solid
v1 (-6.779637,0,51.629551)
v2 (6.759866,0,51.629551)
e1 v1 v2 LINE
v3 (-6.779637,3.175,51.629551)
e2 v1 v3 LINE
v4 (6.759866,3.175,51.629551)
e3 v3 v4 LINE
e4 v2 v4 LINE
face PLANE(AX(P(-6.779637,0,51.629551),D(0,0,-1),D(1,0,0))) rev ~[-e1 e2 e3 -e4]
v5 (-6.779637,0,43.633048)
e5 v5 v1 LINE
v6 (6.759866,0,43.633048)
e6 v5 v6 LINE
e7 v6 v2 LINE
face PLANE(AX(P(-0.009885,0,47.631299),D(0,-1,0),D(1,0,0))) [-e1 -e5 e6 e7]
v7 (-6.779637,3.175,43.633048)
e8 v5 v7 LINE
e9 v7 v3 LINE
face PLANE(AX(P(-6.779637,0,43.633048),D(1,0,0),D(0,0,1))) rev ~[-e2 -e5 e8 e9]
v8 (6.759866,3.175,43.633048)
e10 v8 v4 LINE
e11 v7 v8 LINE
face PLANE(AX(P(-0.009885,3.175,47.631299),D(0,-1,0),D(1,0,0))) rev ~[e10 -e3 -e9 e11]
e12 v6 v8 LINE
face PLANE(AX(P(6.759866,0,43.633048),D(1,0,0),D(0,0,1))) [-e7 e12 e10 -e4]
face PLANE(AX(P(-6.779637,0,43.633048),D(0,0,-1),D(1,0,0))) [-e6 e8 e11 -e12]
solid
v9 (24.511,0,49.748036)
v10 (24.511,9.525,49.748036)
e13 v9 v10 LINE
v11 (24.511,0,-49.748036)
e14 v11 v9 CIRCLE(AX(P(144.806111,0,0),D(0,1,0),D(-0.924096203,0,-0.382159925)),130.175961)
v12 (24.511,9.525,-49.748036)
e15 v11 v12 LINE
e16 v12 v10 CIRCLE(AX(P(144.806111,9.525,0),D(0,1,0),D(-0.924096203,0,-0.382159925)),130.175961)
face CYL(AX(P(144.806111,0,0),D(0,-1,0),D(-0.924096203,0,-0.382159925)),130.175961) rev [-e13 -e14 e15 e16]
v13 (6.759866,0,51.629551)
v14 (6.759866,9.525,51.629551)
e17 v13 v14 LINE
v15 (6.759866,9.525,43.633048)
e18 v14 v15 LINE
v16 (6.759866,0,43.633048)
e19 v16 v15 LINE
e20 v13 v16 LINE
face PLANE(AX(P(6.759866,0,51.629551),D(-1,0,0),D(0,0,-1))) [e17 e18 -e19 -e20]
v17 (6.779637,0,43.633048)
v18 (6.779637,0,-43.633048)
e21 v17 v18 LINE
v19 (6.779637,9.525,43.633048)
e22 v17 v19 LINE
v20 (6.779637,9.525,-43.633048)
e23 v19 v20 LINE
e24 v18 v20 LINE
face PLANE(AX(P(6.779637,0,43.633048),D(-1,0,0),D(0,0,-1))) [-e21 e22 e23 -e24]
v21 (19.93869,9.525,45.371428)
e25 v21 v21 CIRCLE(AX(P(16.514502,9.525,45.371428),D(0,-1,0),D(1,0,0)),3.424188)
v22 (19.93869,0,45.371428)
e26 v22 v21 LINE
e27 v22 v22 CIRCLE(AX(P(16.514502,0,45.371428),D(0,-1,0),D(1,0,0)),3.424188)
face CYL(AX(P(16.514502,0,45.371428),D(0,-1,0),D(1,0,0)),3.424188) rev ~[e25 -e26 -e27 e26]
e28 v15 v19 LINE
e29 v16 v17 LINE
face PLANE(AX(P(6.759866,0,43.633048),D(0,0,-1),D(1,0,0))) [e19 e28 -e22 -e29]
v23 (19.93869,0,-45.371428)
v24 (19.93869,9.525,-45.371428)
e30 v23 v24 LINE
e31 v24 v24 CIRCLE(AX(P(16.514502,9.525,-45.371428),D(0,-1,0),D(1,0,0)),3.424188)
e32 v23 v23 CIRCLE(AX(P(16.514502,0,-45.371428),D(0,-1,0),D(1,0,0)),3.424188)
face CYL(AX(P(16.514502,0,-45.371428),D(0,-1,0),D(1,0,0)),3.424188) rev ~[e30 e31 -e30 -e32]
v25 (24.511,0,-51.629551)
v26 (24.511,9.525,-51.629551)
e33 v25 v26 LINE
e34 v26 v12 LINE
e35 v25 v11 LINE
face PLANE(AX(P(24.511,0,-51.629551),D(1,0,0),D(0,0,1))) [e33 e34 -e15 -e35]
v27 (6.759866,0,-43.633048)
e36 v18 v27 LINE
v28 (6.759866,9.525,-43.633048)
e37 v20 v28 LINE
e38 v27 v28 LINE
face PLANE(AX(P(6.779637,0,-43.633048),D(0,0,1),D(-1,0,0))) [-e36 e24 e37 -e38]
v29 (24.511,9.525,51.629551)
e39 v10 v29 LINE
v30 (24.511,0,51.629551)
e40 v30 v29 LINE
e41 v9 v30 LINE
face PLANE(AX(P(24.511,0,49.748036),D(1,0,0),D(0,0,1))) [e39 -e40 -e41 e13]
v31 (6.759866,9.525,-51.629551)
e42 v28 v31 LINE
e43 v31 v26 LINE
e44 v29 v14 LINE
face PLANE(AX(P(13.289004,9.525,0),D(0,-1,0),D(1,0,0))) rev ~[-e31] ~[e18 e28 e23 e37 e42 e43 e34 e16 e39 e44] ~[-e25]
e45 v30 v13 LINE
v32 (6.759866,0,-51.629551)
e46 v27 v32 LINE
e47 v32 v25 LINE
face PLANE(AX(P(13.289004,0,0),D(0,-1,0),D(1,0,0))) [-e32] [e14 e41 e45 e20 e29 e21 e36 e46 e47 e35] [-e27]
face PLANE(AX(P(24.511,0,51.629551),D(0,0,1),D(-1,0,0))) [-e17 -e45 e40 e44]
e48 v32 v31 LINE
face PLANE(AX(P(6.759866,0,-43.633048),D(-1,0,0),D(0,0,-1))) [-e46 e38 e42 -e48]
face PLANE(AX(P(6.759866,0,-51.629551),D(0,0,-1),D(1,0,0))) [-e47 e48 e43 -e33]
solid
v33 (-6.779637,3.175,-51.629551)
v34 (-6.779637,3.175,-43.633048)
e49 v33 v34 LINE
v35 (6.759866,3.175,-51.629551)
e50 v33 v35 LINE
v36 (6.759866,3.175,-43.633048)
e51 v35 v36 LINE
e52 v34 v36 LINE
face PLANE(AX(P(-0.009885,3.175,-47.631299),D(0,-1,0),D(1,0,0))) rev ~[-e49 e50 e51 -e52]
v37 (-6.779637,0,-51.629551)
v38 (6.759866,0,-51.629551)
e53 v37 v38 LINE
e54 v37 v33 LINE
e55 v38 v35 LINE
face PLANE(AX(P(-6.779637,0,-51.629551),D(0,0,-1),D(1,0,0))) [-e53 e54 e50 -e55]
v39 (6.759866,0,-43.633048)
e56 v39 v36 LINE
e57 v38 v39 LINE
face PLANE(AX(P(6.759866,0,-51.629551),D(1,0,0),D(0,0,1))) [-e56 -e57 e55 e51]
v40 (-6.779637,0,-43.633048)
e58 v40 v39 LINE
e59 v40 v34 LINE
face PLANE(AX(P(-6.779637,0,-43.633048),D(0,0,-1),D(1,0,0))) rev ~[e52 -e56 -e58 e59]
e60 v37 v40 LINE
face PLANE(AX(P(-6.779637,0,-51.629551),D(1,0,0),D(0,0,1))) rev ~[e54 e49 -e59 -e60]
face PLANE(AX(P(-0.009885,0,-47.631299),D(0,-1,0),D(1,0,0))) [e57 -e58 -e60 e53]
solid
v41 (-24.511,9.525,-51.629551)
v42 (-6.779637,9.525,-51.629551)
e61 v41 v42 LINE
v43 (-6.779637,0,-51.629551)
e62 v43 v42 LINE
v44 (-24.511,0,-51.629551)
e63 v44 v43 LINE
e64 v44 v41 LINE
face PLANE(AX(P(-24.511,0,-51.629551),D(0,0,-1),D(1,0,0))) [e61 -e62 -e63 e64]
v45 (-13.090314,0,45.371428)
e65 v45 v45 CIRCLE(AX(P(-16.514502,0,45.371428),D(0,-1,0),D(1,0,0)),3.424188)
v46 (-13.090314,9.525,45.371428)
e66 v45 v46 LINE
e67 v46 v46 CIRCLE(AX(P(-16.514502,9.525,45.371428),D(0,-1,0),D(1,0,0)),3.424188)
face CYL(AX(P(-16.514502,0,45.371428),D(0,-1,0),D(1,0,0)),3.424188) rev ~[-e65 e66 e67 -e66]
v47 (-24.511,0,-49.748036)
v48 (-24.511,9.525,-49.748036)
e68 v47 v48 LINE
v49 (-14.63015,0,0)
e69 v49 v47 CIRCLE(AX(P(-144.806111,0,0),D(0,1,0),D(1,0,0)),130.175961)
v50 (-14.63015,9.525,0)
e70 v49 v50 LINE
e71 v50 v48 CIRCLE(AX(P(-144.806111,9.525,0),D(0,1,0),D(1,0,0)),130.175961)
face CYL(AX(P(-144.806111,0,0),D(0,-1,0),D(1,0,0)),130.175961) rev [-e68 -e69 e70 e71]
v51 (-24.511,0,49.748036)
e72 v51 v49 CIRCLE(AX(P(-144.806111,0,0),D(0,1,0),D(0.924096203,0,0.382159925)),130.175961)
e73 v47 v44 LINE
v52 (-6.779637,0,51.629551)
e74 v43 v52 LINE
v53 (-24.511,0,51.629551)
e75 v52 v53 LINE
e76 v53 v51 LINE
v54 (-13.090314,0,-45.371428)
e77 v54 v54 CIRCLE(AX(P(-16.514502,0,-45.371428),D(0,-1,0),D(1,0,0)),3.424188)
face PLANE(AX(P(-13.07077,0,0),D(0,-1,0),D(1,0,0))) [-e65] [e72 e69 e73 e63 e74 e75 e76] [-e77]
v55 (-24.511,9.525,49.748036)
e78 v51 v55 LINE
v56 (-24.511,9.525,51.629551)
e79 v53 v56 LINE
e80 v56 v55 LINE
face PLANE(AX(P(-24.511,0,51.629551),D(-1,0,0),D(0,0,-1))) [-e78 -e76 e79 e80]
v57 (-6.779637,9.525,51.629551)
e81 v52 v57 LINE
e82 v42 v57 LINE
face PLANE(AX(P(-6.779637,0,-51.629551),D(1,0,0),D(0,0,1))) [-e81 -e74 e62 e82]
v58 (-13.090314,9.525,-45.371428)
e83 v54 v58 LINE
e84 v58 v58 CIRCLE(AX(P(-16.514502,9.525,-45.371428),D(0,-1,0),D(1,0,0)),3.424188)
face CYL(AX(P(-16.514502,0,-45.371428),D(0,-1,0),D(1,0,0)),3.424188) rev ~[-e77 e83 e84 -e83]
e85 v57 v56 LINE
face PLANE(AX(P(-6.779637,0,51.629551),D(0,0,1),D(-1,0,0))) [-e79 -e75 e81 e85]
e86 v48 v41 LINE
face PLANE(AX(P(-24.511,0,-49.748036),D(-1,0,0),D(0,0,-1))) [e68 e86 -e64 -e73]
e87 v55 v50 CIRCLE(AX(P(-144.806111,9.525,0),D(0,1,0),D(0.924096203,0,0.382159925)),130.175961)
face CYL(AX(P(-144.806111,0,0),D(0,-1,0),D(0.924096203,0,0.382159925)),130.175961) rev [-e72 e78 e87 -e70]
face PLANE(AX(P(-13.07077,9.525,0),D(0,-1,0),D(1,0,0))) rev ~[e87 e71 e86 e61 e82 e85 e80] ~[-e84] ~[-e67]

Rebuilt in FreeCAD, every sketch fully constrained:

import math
import FreeCAD as App
import Part
import Sketcher

V = App.Vector
Q = App.Units.Quantity

doc = App.newDocument("Part")
body = doc.addObject("PartDesign::Body", "Body")

# Sketch on XZ plane
sketch1 = body.newObject("Sketcher::SketchObject", "Sketch")
sketch1.AttachmentSupport = (doc.getObject("XZ_Plane"), [""])
sketch1.MapMode = "FlatFace"
sketch1.addGeometry(Part.LineSegment(V(-24.5, -51.6, 0), V(-6.8, -51.6, 0)), False)
sketch1.addGeometry(Part.LineSegment(V(-6.8, -51.6, 0), V(-6.8, 51.6, 0)), False)
sketch1.addGeometry(Part.LineSegment(V(-6.8, 51.6, 0), V(-24.5, 51.6, 0)), False)
sketch1.addGeometry(Part.LineSegment(V(-24.5, 51.6, 0), V(-24.5, 49.7, 0)), False)
sketch1.addGeometry(Part.ArcOfCircle(Part.Circle(V(-144.8, 0, 0), V(0, 0, 1), 130.2), math.radians(0), math.radians(22)), False)
sketch1.addGeometry(Part.ArcOfCircle(Part.Circle(V(-144.8, 0, 0), V(0, 0, 1), 130.2), math.radians(-22), math.radians(0)), False)
sketch1.addGeometry(Part.LineSegment(V(-24.5, -49.7, 0), V(-24.5, -51.6, 0)), False)
sketch1.addGeometry(Part.Circle(V(-16.5, -45.4, 0), V(0, 0, 1), 3.4), False)
sketch1.addGeometry(Part.Circle(V(-16.5, 45.4, 0), V(0, 0, 1), 3.4), False)
sketch1.addConstraint(Sketcher.Constraint("Coincident", 0, 2, 1, 1))
sketch1.addConstraint(Sketcher.Constraint("Coincident", 1, 2, 2, 1))
sketch1.addConstraint(Sketcher.Constraint("Coincident", 2, 2, 3, 1))
sketch1.addConstraint(Sketcher.Constraint("Coincident", 3, 2, 4, 2))
sketch1.addConstraint(Sketcher.Constraint("Tangent", 4, 1, 5, 2))
sketch1.addConstraint(Sketcher.Constraint("Coincident", 5, 1, 6, 1))
sketch1.addConstraint(Sketcher.Constraint("Coincident", 6, 2, 0, 1))
sketch1.addConstraint(Sketcher.Constraint("Horizontal", 0))
sketch1.addConstraint(Sketcher.Constraint("Vertical", 1))
sketch1.addConstraint(Sketcher.Constraint("Horizontal", 2))
sketch1.addConstraint(Sketcher.Constraint("Vertical", 3))
sketch1.addConstraint(Sketcher.Constraint("Vertical", 6))
sketch1.addConstraint(Sketcher.Constraint("Equal", 4, 5))
sketch1.addConstraint(Sketcher.Constraint("Equal", 7, 8))
sketch1.addConstraint(Sketcher.Constraint("Symmetric", 7, 3, 8, 3, -1))
sketch1.addConstraint(Sketcher.Constraint("Symmetric", 3, 2, 5, 1, -1))
sketch1.addConstraint(Sketcher.Constraint("PointOnObject", 4, 1, -1))
sketch1.addConstraint(Sketcher.Constraint("Equal", 3, 6))
sketch1.addConstraint(Sketcher.Constraint("DistanceX", 2, 2, -1, 1, Q("0.965 in")))
sketch1.addConstraint(Sketcher.Constraint("Radius", 4, 130.175961))
sketch1.addConstraint(Sketcher.Constraint("Diameter", 7, 6.848375))
sketch1.addConstraint(Sketcher.Constraint("DistanceY", 1, 1, 1, 2, 103.259101))
sketch1.addConstraint(Sketcher.Constraint("DistanceX", 0, 1, 0, 2, 17.731363))
sketch1.addConstraint(Sketcher.Constraint("DistanceY", 3, 2, 3, 1, 1.881515))
sketch1.addConstraint(Sketcher.Constraint("DistanceY", 7, 3, -1, 1, 45.371428))
sketch1.addConstraint(Sketcher.Constraint("DistanceX", 4, 3, 7, 3, 128.291609))
pad1 = body.newObject("PartDesign::Pad", "Pad")
pad1.Profile = sketch1
pad1.Length = Q("0.375 in")
pad1.Reversed = True
body2 = doc.addObject("PartDesign::Body", "Body001")

# Sketch on XZ plane
sketch2 = body2.newObject("Sketcher::SketchObject", "Sketch001")
sketch2.AttachmentSupport = (doc.getObject("XZ_Plane001"), [""])
sketch2.MapMode = "FlatFace"
sketch2.addGeometry(Part.LineSegment(V(6.76, -51.63, 0), V(24.511, -51.63, 0)), False)
sketch2.addGeometry(Part.LineSegment(V(24.511, -51.63, 0), V(24.511, -49.748, 0)), False)
sketch2.addGeometry(Part.ArcOfCircle(Part.Circle(V(144.806, 0, 0), V(0, 0, 1), 130.176), math.radians(158), math.radians(202)), False)
sketch2.addGeometry(Part.LineSegment(V(24.511, 49.748, 0), V(24.511, 51.63, 0)), False)
sketch2.addGeometry(Part.LineSegment(V(24.511, 51.63, 0), V(6.76, 51.63, 0)), False)
sketch2.addGeometry(Part.LineSegment(V(6.76, 51.63, 0), V(6.76, 43.633, 0)), False)
sketch2.addGeometry(Part.LineSegment(V(6.76, 43.633, 0), V(6.78, 43.633, 0)), False)
sketch2.addGeometry(Part.LineSegment(V(6.78, 43.633, 0), V(6.78, -43.633, 0)), False)
sketch2.addGeometry(Part.LineSegment(V(6.78, -43.633, 0), V(6.76, -43.633, 0)), False)
sketch2.addGeometry(Part.LineSegment(V(6.76, -43.633, 0), V(6.76, -51.63, 0)), False)
sketch2.addGeometry(Part.Circle(V(16.515, -45.371, 0), V(0, 0, 1), 3.424), False)
sketch2.addGeometry(Part.Circle(V(16.515, 45.371, 0), V(0, 0, 1), 3.424), False)
sketch2.addConstraint(Sketcher.Constraint("Coincident", 0, 2, 1, 1))
sketch2.addConstraint(Sketcher.Constraint("Coincident", 1, 2, 2, 2))
sketch2.addConstraint(Sketcher.Constraint("Coincident", 2, 1, 3, 1))
sketch2.addConstraint(Sketcher.Constraint("Coincident", 3, 2, 4, 1))
sketch2.addConstraint(Sketcher.Constraint("Coincident", 4, 2, 5, 1))
sketch2.addConstraint(Sketcher.Constraint("Coincident", 5, 2, 6, 1))
sketch2.addConstraint(Sketcher.Constraint("Coincident", 6, 2, 7, 1))
sketch2.addConstraint(Sketcher.Constraint("Coincident", 7, 2, 8, 1))
sketch2.addConstraint(Sketcher.Constraint("Coincident", 8, 2, 9, 1))
sketch2.addConstraint(Sketcher.Constraint("Coincident", 9, 2, 0, 1))
sketch2.addConstraint(Sketcher.Constraint("Horizontal", 0))
sketch2.addConstraint(Sketcher.Constraint("Vertical", 1))
sketch2.addConstraint(Sketcher.Constraint("Vertical", 3))
sketch2.addConstraint(Sketcher.Constraint("Horizontal", 4))
sketch2.addConstraint(Sketcher.Constraint("Vertical", 5))
sketch2.addConstraint(Sketcher.Constraint("Horizontal", 6))
sketch2.addConstraint(Sketcher.Constraint("Vertical", 7))
sketch2.addConstraint(Sketcher.Constraint("Horizontal", 8))
sketch2.addConstraint(Sketcher.Constraint("Vertical", 9))
sketch2.addConstraint(Sketcher.Constraint("Equal", 10, 11))
sketch2.addConstraint(Sketcher.Constraint("Symmetric", 10, 3, 11, 3, -1))
sketch2.addConstraint(Sketcher.Constraint("Symmetric", 1, 2, 2, 1, -1))
sketch2.addConstraint(Sketcher.Constraint("Symmetric", 5, 2, 8, 2, -1))
sketch2.addConstraint(Sketcher.Constraint("Equal", 1, 3))
sketch2.addConstraint(Sketcher.Constraint("DistanceX", -1, 1, 0, 2, Q("0.965 in")))
sketch2.addConstraint(Sketcher.Constraint("Radius", 2, 130.175961))
sketch2.addConstraint(Sketcher.Constraint("Diameter", 10, 6.848375))
sketch2.addConstraint(Sketcher.Constraint("DistanceX", 6, 1, 6, 2, 0.019771))
sketch2.addConstraint(Sketcher.Constraint("DistanceY", 0, 2, 3, 2, 103.259101))
sketch2.addConstraint(Sketcher.Constraint("DistanceX", 0, 1, 0, 2, 17.751134))
sketch2.addConstraint(Sketcher.Constraint("DistanceY", 1, 1, 1, 2, 1.881515))
sketch2.addConstraint(Sketcher.Constraint("DistanceY", 5, 2, 5, 1, 7.996502))
sketch2.addConstraint(Sketcher.Constraint("DistanceY", 10, 3, -1, 1, 45.371428))
sketch2.addConstraint(Sketcher.Constraint("DistanceX", 10, 3, 2, 3, 128.291609))
pad2 = body2.newObject("PartDesign::Pad", "Pad001")
pad2.Profile = sketch2
pad2.Length = Q("0.375 in")
pad2.Reversed = True
body3 = doc.addObject("PartDesign::Body", "Body002")

# Sketch on XZ plane
sketch3 = body3.newObject("Sketcher::SketchObject", "Sketch002")
sketch3.AttachmentSupport = (doc.getObject("XZ_Plane002"), [""])
sketch3.MapMode = "FlatFace"
sketch3.addGeometry(Part.LineSegment(V(-7, -44, 0), V(-7, -52, 0)), False)
sketch3.addGeometry(Part.LineSegment(V(-7, -52, 0), V(7, -52, 0)), False)
sketch3.addGeometry(Part.LineSegment(V(7, -52, 0), V(7, -44, 0)), False)
sketch3.addGeometry(Part.LineSegment(V(7, -44, 0), V(-7, -44, 0)), False)
sketch3.addConstraint(Sketcher.Constraint("Coincident", 0, 2, 1, 1))
sketch3.addConstraint(Sketcher.Constraint("Coincident", 1, 2, 2, 1))
sketch3.addConstraint(Sketcher.Constraint("Coincident", 2, 2, 3, 1))
sketch3.addConstraint(Sketcher.Constraint("Coincident", 3, 2, 0, 1))
sketch3.addConstraint(Sketcher.Constraint("Vertical", 0))
sketch3.addConstraint(Sketcher.Constraint("Horizontal", 1))
sketch3.addConstraint(Sketcher.Constraint("Vertical", 2))
sketch3.addConstraint(Sketcher.Constraint("Horizontal", 3))
sketch3.addConstraint(Sketcher.Constraint("DistanceX", 1, 1, 1, 2, 13.539502))
sketch3.addConstraint(Sketcher.Constraint("DistanceY", 0, 2, 0, 1, 7.996502))
sketch3.addConstraint(Sketcher.Constraint("DistanceY", 0, 2, -1, 1, 51.629551))
sketch3.addConstraint(Sketcher.Constraint("DistanceX", 0, 2, -1, 1, 6.779637))
pad3 = body3.newObject("PartDesign::Pad", "Pad002")
pad3.Profile = sketch3
pad3.Length = Q("0.125 in")
pad3.Reversed = True
body4 = doc.addObject("PartDesign::Body", "Body003")

# Sketch on XZ plane
sketch4 = body4.newObject("Sketcher::SketchObject", "Sketch003")
sketch4.AttachmentSupport = (doc.getObject("XZ_Plane003"), [""])
sketch4.MapMode = "FlatFace"
sketch4.addGeometry(Part.LineSegment(V(-7, 52, 0), V(-7, 44, 0)), False)
sketch4.addGeometry(Part.LineSegment(V(-7, 44, 0), V(7, 44, 0)), False)
sketch4.addGeometry(Part.LineSegment(V(7, 44, 0), V(7, 52, 0)), False)
sketch4.addGeometry(Part.LineSegment(V(7, 52, 0), V(-7, 52, 0)), False)
sketch4.addConstraint(Sketcher.Constraint("Coincident", 0, 2, 1, 1))
sketch4.addConstraint(Sketcher.Constraint("Coincident", 1, 2, 2, 1))
sketch4.addConstraint(Sketcher.Constraint("Coincident", 2, 2, 3, 1))
sketch4.addConstraint(Sketcher.Constraint("Coincident", 3, 2, 0, 1))
sketch4.addConstraint(Sketcher.Constraint("Vertical", 0))
sketch4.addConstraint(Sketcher.Constraint("Horizontal", 1))
sketch4.addConstraint(Sketcher.Constraint("Vertical", 2))
sketch4.addConstraint(Sketcher.Constraint("Horizontal", 3))
sketch4.addConstraint(Sketcher.Constraint("DistanceX", 1, 1, 1, 2, 13.539502))
sketch4.addConstraint(Sketcher.Constraint("DistanceY", 0, 2, 0, 1, 7.996502))
sketch4.addConstraint(Sketcher.Constraint("DistanceY", -1, 1, 0, 2, 43.633048))
sketch4.addConstraint(Sketcher.Constraint("DistanceX", 0, 2, -1, 1, 6.779637))
pad4 = body4.newObject("PartDesign::Pad", "Pad003")
pad4.Profile = sketch4
pad4.Length = Q("0.125 in")
pad4.Reversed = True

doc.recompute()
